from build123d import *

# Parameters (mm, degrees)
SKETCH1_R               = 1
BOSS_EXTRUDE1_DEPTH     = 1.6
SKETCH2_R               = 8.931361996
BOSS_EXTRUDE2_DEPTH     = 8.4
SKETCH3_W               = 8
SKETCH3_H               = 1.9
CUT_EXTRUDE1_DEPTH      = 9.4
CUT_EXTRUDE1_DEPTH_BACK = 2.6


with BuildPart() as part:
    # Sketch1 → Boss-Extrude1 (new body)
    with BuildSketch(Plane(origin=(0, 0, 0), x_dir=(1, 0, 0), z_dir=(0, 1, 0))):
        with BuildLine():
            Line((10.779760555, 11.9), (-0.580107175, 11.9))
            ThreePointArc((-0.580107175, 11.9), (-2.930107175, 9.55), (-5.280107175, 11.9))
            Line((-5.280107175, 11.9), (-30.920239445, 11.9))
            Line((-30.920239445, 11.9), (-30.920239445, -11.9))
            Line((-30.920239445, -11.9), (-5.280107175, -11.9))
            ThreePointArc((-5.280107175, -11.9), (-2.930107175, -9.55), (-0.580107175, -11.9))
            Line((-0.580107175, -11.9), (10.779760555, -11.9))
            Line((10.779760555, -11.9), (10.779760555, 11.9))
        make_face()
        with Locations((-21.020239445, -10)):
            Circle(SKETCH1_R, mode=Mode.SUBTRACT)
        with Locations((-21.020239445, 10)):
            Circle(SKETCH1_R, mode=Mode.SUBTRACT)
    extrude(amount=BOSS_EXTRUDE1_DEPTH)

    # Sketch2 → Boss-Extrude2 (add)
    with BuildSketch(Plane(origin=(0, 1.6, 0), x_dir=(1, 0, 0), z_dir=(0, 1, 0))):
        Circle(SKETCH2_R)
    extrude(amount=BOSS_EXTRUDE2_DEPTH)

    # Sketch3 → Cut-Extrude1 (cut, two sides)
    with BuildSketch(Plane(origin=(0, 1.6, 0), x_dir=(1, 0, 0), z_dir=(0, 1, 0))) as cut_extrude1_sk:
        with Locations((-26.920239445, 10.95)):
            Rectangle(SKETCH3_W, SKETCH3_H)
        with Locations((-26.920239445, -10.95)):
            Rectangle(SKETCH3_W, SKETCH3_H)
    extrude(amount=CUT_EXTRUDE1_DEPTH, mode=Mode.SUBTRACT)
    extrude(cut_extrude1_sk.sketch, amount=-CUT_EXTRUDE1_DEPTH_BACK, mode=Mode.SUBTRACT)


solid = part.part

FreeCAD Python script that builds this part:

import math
import FreeCAD as App
import Part
import Sketcher

doc = App.newDocument("Part")
params = doc.addObject("Spreadsheet::Sheet", "Params")
for row, (alias, value) in enumerate([
    ("sketch1_diameter", "2 mm"),
    ("sketch1_radius", "2.35 mm"),
    ("sketch1_height", "23.8 mm"),
    ("pad1_length", "1.6 mm"),
    ("pad2_length", "8.4 mm"),
    ("sketch3_width", "8 mm"),
    ("sketch3_height", "1.9 mm"),
], start=1):
    params.set(f"A{row}", alias)
    params.set(f"B{row}", "=" + value)
    params.setAlias(f"B{row}", alias)

body = doc.addObject("PartDesign::Body", "Body")

sketch1 = body.newObject("Sketcher::SketchObject", "Sketch")
sketch1.AttachmentSupport = (doc.getObject("XZ_Plane"), [""])
sketch1.MapMode = "FlatFace"
sketch1.addGeometry(Part.LineSegment(App.Vector(10.8, -11.9, 0), App.Vector(-0.6, -11.9, 0)), False)
sketch1.addGeometry(Part.ArcOfCircle(Part.Circle(App.Vector(-2.9, -11.9, 0), App.Vector(0, 0, 1), 2.4), math.radians(0), math.radians(180)), False)
sketch1.addGeometry(Part.LineSegment(App.Vector(-5.3, -11.9, 0), App.Vector(-30.9, -11.9, 0)), False)
sketch1.addGeometry(Part.LineSegment(App.Vector(-30.9, -11.9, 0), App.Vector(-30.9, 11.9, 0)), False)
sketch1.addGeometry(Part.LineSegment(App.Vector(-30.9, 11.9, 0), App.Vector(-5.3, 11.9, 0)), False)
sketch1.addGeometry(Part.ArcOfCircle(Part.Circle(App.Vector(-2.9, 11.9, 0), App.Vector(0, 0, 1), 2.4), math.radians(180), math.radians(360)), False)
sketch1.addGeometry(Part.LineSegment(App.Vector(-0.6, 11.9, 0), App.Vector(10.8, 11.9, 0)), False)
sketch1.addGeometry(Part.LineSegment(App.Vector(10.8, 11.9, 0), App.Vector(10.8, -11.9, 0)), False)
sketch1.addGeometry(Part.Circle(App.Vector(-21, 10, 0), App.Vector(0, 0, 1), 1), False)
sketch1.addGeometry(Part.Circle(App.Vector(-21, -10, 0), App.Vector(0, 0, 1), 1), False)
sketch1.addConstraint(Sketcher.Constraint("Coincident", 0, 2, 1, 1))
sketch1.addConstraint(Sketcher.Constraint("Coincident", 1, 2, 2, 1))
sketch1.addConstraint(Sketcher.Constraint("Coincident", 2, 2, 3, 1))
sketch1.addConstraint(Sketcher.Constraint("Coincident", 3, 2, 4, 1))
sketch1.addConstraint(Sketcher.Constraint("Coincident", 4, 2, 5, 1))
sketch1.addConstraint(Sketcher.Constraint("Coincident", 5, 2, 6, 1))
sketch1.addConstraint(Sketcher.Constraint("Coincident", 6, 2, 7, 1))
sketch1.addConstraint(Sketcher.Constraint("Coincident", 7, 2, 0, 1))
sketch1.addConstraint(Sketcher.Constraint("Horizontal", 0))
sketch1.addConstraint(Sketcher.Constraint("Horizontal", 2))
sketch1.addConstraint(Sketcher.Constraint("Vertical", 3))
sketch1.addConstraint(Sketcher.Constraint("Horizontal", 4))
sketch1.addConstraint(Sketcher.Constraint("Horizontal", 6))
sketch1.addConstraint(Sketcher.Constraint("Vertical", 7))
sketch1.addConstraint(Sketcher.Constraint("Equal", 1, 5))
sketch1.addConstraint(Sketcher.Constraint("Equal", 8, 9))
sketch1.addConstraint(Sketcher.Constraint("Symmetric", 1, 3, 5, 3, -1))
sketch1.addConstraint(Sketcher.Constraint("Symmetric", 8, 3, 9, 3, -1))
sketch1.addConstraint(Sketcher.Constraint("Horizontal", 1, 3, 0, 2))
sketch1.addConstraint(Sketcher.Constraint("Horizontal", 0, 2, 1, 2))
sketch1.addConstraint(Sketcher.Constraint("Horizontal", 5, 3, 3, 2))
sketch1.addConstraint(Sketcher.Constraint("Horizontal", 4, 2, 5, 2))
sketch1.addConstraint(Sketcher.Constraint("Diameter", 8, 2.0))
sketch1.addConstraint(Sketcher.Constraint("Radius", 1, 2.35))
sketch1.addConstraint(Sketcher.Constraint("DistanceY", 3, 1, 3, 2, 23.8))
sketch1.addConstraint(Sketcher.Constraint("DistanceY", -1, 1, 8, 3, 10.0))
sketch1.addConstraint(Sketcher.Constraint("DistanceX", 2, 2, 9, 3, 9.9))
sketch1.addConstraint(Sketcher.Constraint("DistanceX", 0, 2, 0, 1, 11.359868))
sketch1.addConstraint(Sketcher.Constraint("DistanceX", 2, 2, 2, 1, 25.640132))
sketch1.addConstraint(Sketcher.Constraint("DistanceX", 8, 3, -1, 1, 21.020239))
sketch1.setExpression("Constraints[22]", "Params.sketch1_diameter")
sketch1.setExpression("Constraints[23]", "Params.sketch1_radius")
sketch1.setExpression("Constraints[24]", "Params.sketch1_height")
pad1 = body.newObject("PartDesign::Pad", "Pad")
pad1.Profile = sketch1
pad1.setExpression("Length", "Params.pad1_length")
pad1.Reversed = True

sketch2 = body.newObject("Sketcher::SketchObject", "Sketch001")
sketch2.AttachmentSupport = (doc.getObject("XZ_Plane"), [""])
sketch2.MapMode = "FlatFace"
sketch2.AttachmentOffset = App.Placement(App.Vector(0, 0, -1.6), App.Rotation())
sketch2.addGeometry(Part.Circle(App.Vector(0, 0, 0), App.Vector(0, 0, 1), 9), False)
sketch2.addConstraint(Sketcher.Constraint("Coincident", 0, 3, -1, 1))
sketch2.addConstraint(Sketcher.Constraint("Diameter", 0, 17.862724))
pad2 = body.newObject("PartDesign::Pad", "Pad001")
pad2.Profile = sketch2
pad2.setExpression("Length", "Params.pad2_length")
pad2.Reversed = True

sketch3 = body.newObject("Sketcher::SketchObject", "Sketch002")
sketch3.AttachmentSupport = (doc.getObject("XZ_Plane"), [""])
sketch3.MapMode = "FlatFace"
sketch3.AttachmentOffset = App.Placement(App.Vector(0, 0, -1.6), App.Rotation())
sketch3.addGeometry(Part.LineSegment(App.Vector(-30.9, -11.9, 0), App.Vector(-30.9, -10, 0)), False)
sketch3.addGeometry(Part.LineSegment(App.Vector(-30.9, -10, 0), App.Vector(-22.9, -10, 0)), False)
sketch3.addGeometry(Part.LineSegment(App.Vector(-22.9, -10, 0), App.Vector(-22.9, -11.9, 0)), False)
sketch3.addGeometry(Part.LineSegment(App.Vector(-22.9, -11.9, 0), App.Vector(-30.9, -11.9, 0)), False)
sketch3.addGeometry(Part.LineSegment(App.Vector(-30.9, 10, 0), App.Vector(-30.9, 11.9, 0)), False)
sketch3.addGeometry(Part.LineSegment(App.Vector(-30.9, 11.9, 0), App.Vector(-22.9, 11.9, 0)), False)
sketch3.addGeometry(Part.LineSegment(App.Vector(-22.9, 11.9, 0), App.Vector(-22.9, 10, 0)), False)
sketch3.addGeometry(Part.LineSegment(App.Vector(-22.9, 10, 0), App.Vector(-30.9, 10, 0)), False)
sketch3.addConstraint(Sketcher.Constraint("Coincident", 0, 2, 1, 1))
sketch3.addConstraint(Sketcher.Constraint("Coincident", 1, 2, 2, 1))
sketch3.addConstraint(Sketcher.Constraint("Coincident", 2, 2, 3, 1))
sketch3.addConstraint(Sketcher.Constraint("Coincident", 3, 2, 0, 1))
sketch3.addConstraint(Sketcher.Constraint("Coincident", 4, 2, 5, 1))
sketch3.addConstraint(Sketcher.Constraint("Coincident", 5, 2, 6, 1))
sketch3.addConstraint(Sketcher.Constraint("Coincident", 6, 2, 7, 1))
sketch3.addConstraint(Sketcher.Constraint("Coincident", 7, 2, 4, 1))
sketch3.addConstraint(Sketcher.Constraint("Vertical", 0))
sketch3.addConstraint(Sketcher.Constraint("Horizontal", 1))
sketch3.addConstraint(Sketcher.Constraint("Vertical", 2))
sketch3.addConstraint(Sketcher.Constraint("Horizontal", 3))
sketch3.addConstraint(Sketcher.Constraint("Vertical", 4))
sketch3.addConstraint(Sketcher.Constraint("Horizontal", 5))
sketch3.addConstraint(Sketcher.Constraint("Vertical", 6))
sketch3.addConstraint(Sketcher.Constraint("Horizontal", 7))
sketch3.addConstraint(Sketcher.Constraint("Symmetric", 3, 2, 4, 2, -1))
sketch3.addConstraint(Sketcher.Constraint("Symmetric", 1, 2, 6, 2, -1))
sketch3.addConstraint(Sketcher.Constraint("DistanceX", 1, 1, 1, 2, 8.0))
sketch3.addConstraint(Sketcher.Constraint("DistanceY", 0, 1, 0, 2, 1.9))
sketch3.addConstraint(Sketcher.Constraint("DistanceY", 0, 2, -1, 1, 10.0))
sketch3.addConstraint(Sketcher.Constraint("DistanceX", 0, 2, -1, 1, 30.920239))
sketch3.setExpression("Constraints[18]", "Params.sketch3_width")
sketch3.setExpression("Constraints[19]", "Params.sketch3_height")
pocket1 = body.newObject("PartDesign::Pocket", "Pocket")
pocket1.Profile = sketch3
pocket1.Type = "ThroughAll"
pocket1.Midplane = True

doc.recompute()
